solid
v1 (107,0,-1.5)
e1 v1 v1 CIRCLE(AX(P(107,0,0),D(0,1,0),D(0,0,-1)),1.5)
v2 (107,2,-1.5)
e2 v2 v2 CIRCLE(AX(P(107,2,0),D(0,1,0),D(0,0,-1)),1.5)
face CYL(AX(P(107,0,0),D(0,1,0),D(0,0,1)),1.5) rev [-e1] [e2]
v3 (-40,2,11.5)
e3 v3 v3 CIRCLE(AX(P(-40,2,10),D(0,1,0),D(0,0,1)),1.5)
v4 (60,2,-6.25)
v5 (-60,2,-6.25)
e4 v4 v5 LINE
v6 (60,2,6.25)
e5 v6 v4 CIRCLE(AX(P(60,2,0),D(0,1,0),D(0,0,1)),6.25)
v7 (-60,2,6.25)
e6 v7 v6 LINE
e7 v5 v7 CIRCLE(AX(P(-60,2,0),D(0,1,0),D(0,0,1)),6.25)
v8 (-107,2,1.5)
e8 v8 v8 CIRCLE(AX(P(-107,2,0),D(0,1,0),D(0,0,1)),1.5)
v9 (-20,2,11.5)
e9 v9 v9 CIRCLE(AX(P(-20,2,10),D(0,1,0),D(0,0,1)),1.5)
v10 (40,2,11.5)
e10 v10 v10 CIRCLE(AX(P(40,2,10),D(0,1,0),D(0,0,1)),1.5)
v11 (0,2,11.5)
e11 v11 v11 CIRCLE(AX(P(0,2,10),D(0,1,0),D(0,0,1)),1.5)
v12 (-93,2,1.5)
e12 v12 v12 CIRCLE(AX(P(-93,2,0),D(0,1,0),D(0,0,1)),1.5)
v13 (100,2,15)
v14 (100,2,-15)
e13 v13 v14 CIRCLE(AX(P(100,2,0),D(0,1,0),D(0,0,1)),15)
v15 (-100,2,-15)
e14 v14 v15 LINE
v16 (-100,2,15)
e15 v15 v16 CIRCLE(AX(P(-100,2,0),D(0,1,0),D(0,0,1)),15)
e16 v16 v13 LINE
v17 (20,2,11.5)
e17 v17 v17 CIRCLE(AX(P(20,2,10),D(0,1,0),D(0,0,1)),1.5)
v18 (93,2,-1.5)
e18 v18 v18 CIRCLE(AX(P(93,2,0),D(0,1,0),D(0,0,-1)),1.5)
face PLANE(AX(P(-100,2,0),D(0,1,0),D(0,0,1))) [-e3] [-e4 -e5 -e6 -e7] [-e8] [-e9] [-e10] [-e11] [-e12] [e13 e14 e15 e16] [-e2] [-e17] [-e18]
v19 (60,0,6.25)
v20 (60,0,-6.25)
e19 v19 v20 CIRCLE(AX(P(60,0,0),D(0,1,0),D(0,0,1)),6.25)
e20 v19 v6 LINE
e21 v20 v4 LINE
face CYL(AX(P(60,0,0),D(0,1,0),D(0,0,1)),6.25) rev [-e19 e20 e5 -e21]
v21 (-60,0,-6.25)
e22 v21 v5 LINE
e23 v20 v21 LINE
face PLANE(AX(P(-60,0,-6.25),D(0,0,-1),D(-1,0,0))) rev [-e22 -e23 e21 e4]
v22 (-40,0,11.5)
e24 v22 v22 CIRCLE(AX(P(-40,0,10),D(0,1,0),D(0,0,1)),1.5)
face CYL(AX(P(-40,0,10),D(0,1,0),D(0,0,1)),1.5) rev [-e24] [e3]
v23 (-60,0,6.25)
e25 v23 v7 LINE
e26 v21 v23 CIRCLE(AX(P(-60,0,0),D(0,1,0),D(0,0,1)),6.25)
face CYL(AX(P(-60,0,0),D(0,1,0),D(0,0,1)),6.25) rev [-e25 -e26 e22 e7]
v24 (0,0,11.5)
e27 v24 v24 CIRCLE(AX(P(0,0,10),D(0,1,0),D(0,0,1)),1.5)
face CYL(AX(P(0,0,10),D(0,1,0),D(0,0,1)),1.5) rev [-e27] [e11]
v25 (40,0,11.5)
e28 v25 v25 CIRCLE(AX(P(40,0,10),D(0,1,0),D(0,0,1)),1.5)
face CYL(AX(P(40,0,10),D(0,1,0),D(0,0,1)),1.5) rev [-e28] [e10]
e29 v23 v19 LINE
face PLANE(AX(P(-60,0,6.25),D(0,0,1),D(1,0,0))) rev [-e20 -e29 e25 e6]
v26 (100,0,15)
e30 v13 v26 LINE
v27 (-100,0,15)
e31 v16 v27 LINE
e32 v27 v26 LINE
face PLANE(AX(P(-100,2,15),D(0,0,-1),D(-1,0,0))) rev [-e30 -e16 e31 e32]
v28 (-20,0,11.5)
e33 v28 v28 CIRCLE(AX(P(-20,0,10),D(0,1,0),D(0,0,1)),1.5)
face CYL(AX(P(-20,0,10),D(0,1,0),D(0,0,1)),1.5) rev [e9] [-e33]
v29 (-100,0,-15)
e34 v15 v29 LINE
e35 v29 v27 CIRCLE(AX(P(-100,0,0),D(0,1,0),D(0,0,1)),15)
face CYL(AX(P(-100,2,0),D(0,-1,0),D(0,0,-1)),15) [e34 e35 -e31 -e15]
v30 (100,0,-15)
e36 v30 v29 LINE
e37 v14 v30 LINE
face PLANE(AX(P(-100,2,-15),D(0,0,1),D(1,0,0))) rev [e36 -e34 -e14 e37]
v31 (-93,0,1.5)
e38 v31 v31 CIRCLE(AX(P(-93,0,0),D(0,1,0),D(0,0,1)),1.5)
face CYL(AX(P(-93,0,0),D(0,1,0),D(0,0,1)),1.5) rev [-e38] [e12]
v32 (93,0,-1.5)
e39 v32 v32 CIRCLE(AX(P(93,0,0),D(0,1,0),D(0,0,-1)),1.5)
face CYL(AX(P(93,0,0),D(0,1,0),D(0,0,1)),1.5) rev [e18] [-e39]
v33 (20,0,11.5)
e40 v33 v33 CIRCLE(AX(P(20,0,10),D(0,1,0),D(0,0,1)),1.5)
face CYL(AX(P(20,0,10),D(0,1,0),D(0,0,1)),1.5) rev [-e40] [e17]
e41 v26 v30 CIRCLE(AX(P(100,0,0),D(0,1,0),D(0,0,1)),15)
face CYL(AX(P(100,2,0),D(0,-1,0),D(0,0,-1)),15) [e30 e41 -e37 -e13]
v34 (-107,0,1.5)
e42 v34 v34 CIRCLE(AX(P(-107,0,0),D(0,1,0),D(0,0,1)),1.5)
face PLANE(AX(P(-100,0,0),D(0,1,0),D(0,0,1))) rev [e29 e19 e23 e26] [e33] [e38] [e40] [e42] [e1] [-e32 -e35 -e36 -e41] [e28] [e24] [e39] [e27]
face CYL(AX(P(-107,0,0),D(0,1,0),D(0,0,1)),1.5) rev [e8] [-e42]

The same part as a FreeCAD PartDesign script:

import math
import FreeCAD as App
import Part
import Sketcher

V = App.Vector
Q = App.Units.Quantity

doc = App.newDocument("Part")
body = doc.addObject("PartDesign::Body", "Body")

# Sketch on XZ plane
sketch1 = body.newObject("Sketcher::SketchObject", "Sketch")
sketch1.AttachmentSupport = (doc.getObject("XZ_Plane"), [""])
sketch1.MapMode = "FlatFace"
sketch1.addGeometry(Part.LineSegment(V(100, -15, 0), V(-100, -15, 0)), False)
sketch1.addGeometry(Part.ArcOfCircle(Part.Circle(V(-100, 0, 0), V(0, 0, 1), 15), math.radians(90), math.radians(270)), False)
sketch1.addGeometry(Part.LineSegment(V(-100, 15, 0), V(100, 15, 0)), False)
sketch1.addGeometry(Part.ArcOfCircle(Part.Circle(V(100, 0, 0), V(0, 0, 1), 15), math.radians(-90), math.radians(90)), False)
sketch1.addConstraint(Sketcher.Constraint("Tangent", 0, 2, 1, 2))
sketch1.addConstraint(Sketcher.Constraint("Tangent", 1, 1, 2, 1))
sketch1.addConstraint(Sketcher.Constraint("Tangent", 2, 2, 3, 2))
sketch1.addConstraint(Sketcher.Constraint("Tangent", 3, 1, 0, 1))
sketch1.addConstraint(Sketcher.Constraint("Horizontal", 0))
sketch1.addConstraint(Sketcher.Constraint("Horizontal", 2))
sketch1.addConstraint(Sketcher.Constraint("Symmetric", 1, 3, 3, 3, -1, 1))
sketch1.addConstraint(Sketcher.Constraint("Radius", 1, Q("15 mm")))
sketch1.addConstraint(Sketcher.Constraint("DistanceX", 0, 2, 0, 1, Q("200 mm")))
pad1 = body.newObject("PartDesign::Pad", "Pad")
pad1.Profile = sketch1
pad1.Length = 2
pad1.Reversed = True

# Sketch on XZ plane
sketch2 = body.newObject("Sketcher::SketchObject", "Sketch001")
sketch2.AttachmentSupport = (doc.getObject("XZ_Plane"), [""])
sketch2.MapMode = "FlatFace"
sketch2.AttachmentOffset = App.Placement(V(0, 0, -2), App.Rotation())
sketch2.addGeometry(Part.Circle(V(-107, 0, 0), V(0, 0, 1), 1.5), False)
sketch2.addGeometry(Part.Circle(V(-93, 0, 0), V(0, 0, 1), 1.5), False)
sketch2.addGeometry(Part.Circle(V(107, 0, 0), V(0, 0, 1), 1.5), False)
sketch2.addGeometry(Part.Circle(V(93, 0, 0), V(0, 0, 1), 1.5), False)
sketch2.addGeometry(Part.Circle(V(0, 10, 0), V(0, 0, 1), 1.5), False)
sketch2.addGeometry(Part.Circle(V(20, 10, 0), V(0, 0, 1), 1.5), False)
sketch2.addGeometry(Part.Circle(V(40, 10, 0), V(0, 0, 1), 1.5), False)
sketch2.addGeometry(Part.Circle(V(-20, 10, 0), V(0, 0, 1), 1.5), False)
sketch2.addGeometry(Part.Circle(V(-40, 10, 0), V(0, 0, 1), 1.5), False)
sketch2.addGeometry(Part.LineSegment(V(60, -6.25, 0), V(-60, -6.25, 0)), False)
sketch2.addGeometry(Part.ArcOfCircle(Part.Circle(V(-60, 0, 0), V(0, 0, 1), 6.25), math.radians(90), math.radians(270)), False)
sketch2.addGeometry(Part.LineSegment(V(-60, 6.25, 0), V(60, 6.25, 0)), False)
sketch2.addGeometry(Part.ArcOfCircle(Part.Circle(V(60, 0, 0), V(0, 0, 1), 6.25), math.radians(-90), math.radians(90)), False)
sketch2.addConstraint(Sketcher.Constraint("Tangent", 9, 2, 10, 2))
sketch2.addConstraint(Sketcher.Constraint("Tangent", 10, 1, 11, 1))
sketch2.addConstraint(Sketcher.Constraint("Tangent", 11, 2, 12, 2))
sketch2.addConstraint(Sketcher.Constraint("Tangent", 12, 1, 9, 1))
sketch2.addConstraint(Sketcher.Constraint("Horizontal", 9))
sketch2.addConstraint(Sketcher.Constraint("Horizontal", 11))
sketch2.addConstraint(Sketcher.Constraint("Equal", 0, 1))
sketch2.addConstraint(Sketcher.Constraint("Equal", 1, 2))
sketch2.addConstraint(Sketcher.Constraint("Equal", 2, 3))
sketch2.addConstraint(Sketcher.Constraint("Equal", 3, 4))
sketch2.addConstraint(Sketcher.Constraint("Equal", 4, 5))
sketch2.addConstraint(Sketcher.Constraint("Equal", 5, 6))
sketch2.addConstraint(Sketcher.Constraint("Equal", 6, 7))
sketch2.addConstraint(Sketcher.Constraint("Equal", 7, 8))
sketch2.addConstraint(Sketcher.Constraint("Symmetric", 0, 3, 2, 3, -1, 1))
sketch2.addConstraint(Sketcher.Constraint("Symmetric", 1, 3, 3, 3, -1, 1))
sketch2.addConstraint(Sketcher.Constraint("Symmetric", 10, 3, 12, 3, -1, 1))
sketch2.addConstraint(Sketcher.Constraint("Symmetric", 5, 3, 7, 3, -2))
sketch2.addConstraint(Sketcher.Constraint("Symmetric", 6, 3, 8, 3, -2))
sketch2.addConstraint(Sketcher.Constraint("PointOnObject", 0, 3, -1))
sketch2.addConstraint(Sketcher.Constraint("PointOnObject", 1, 3, -1))
sketch2.addConstraint(Sketcher.Constraint("PointOnObject", 4, 3, -2))
sketch2.addConstraint(Sketcher.Constraint("Horizontal", 4, 3, 5, 3))
sketch2.addConstraint(Sketcher.Constraint("Horizontal", 5, 3, 6, 3))
sketch2.addConstraint(Sketcher.Constraint("Diameter", 0, Q("3 mm")))
sketch2.addConstraint(Sketcher.Constraint("DistanceX", 9, 2, 9, 1, Q("120 mm")))
sketch2.addConstraint(Sketcher.Constraint("Radius", 10, Q("6.25 mm")))
sketch2.addConstraint(Sketcher.Constraint("DistanceX", 0, 3, -1, 1, Q("107 mm")))
sketch2.addConstraint(Sketcher.Constraint("DistanceX", 1, 3, -1, 1, Q("93 mm")))
sketch2.addConstraint(Sketcher.Constraint("DistanceY", -1, 1, 4, 3, Q("10 mm")))
sketch2.addConstraint(Sketcher.Constraint("DistanceX", -1, 1, 5, 3, Q("20 mm")))
sketch2.addConstraint(Sketcher.Constraint("DistanceX", -1, 1, 6, 3, Q("40 mm")))
pocket1 = body.newObject("PartDesign::Pocket", "Pocket")
pocket1.Profile = sketch2
pocket1.Length = 2
pocket1.Reversed = True

doc.recompute()
